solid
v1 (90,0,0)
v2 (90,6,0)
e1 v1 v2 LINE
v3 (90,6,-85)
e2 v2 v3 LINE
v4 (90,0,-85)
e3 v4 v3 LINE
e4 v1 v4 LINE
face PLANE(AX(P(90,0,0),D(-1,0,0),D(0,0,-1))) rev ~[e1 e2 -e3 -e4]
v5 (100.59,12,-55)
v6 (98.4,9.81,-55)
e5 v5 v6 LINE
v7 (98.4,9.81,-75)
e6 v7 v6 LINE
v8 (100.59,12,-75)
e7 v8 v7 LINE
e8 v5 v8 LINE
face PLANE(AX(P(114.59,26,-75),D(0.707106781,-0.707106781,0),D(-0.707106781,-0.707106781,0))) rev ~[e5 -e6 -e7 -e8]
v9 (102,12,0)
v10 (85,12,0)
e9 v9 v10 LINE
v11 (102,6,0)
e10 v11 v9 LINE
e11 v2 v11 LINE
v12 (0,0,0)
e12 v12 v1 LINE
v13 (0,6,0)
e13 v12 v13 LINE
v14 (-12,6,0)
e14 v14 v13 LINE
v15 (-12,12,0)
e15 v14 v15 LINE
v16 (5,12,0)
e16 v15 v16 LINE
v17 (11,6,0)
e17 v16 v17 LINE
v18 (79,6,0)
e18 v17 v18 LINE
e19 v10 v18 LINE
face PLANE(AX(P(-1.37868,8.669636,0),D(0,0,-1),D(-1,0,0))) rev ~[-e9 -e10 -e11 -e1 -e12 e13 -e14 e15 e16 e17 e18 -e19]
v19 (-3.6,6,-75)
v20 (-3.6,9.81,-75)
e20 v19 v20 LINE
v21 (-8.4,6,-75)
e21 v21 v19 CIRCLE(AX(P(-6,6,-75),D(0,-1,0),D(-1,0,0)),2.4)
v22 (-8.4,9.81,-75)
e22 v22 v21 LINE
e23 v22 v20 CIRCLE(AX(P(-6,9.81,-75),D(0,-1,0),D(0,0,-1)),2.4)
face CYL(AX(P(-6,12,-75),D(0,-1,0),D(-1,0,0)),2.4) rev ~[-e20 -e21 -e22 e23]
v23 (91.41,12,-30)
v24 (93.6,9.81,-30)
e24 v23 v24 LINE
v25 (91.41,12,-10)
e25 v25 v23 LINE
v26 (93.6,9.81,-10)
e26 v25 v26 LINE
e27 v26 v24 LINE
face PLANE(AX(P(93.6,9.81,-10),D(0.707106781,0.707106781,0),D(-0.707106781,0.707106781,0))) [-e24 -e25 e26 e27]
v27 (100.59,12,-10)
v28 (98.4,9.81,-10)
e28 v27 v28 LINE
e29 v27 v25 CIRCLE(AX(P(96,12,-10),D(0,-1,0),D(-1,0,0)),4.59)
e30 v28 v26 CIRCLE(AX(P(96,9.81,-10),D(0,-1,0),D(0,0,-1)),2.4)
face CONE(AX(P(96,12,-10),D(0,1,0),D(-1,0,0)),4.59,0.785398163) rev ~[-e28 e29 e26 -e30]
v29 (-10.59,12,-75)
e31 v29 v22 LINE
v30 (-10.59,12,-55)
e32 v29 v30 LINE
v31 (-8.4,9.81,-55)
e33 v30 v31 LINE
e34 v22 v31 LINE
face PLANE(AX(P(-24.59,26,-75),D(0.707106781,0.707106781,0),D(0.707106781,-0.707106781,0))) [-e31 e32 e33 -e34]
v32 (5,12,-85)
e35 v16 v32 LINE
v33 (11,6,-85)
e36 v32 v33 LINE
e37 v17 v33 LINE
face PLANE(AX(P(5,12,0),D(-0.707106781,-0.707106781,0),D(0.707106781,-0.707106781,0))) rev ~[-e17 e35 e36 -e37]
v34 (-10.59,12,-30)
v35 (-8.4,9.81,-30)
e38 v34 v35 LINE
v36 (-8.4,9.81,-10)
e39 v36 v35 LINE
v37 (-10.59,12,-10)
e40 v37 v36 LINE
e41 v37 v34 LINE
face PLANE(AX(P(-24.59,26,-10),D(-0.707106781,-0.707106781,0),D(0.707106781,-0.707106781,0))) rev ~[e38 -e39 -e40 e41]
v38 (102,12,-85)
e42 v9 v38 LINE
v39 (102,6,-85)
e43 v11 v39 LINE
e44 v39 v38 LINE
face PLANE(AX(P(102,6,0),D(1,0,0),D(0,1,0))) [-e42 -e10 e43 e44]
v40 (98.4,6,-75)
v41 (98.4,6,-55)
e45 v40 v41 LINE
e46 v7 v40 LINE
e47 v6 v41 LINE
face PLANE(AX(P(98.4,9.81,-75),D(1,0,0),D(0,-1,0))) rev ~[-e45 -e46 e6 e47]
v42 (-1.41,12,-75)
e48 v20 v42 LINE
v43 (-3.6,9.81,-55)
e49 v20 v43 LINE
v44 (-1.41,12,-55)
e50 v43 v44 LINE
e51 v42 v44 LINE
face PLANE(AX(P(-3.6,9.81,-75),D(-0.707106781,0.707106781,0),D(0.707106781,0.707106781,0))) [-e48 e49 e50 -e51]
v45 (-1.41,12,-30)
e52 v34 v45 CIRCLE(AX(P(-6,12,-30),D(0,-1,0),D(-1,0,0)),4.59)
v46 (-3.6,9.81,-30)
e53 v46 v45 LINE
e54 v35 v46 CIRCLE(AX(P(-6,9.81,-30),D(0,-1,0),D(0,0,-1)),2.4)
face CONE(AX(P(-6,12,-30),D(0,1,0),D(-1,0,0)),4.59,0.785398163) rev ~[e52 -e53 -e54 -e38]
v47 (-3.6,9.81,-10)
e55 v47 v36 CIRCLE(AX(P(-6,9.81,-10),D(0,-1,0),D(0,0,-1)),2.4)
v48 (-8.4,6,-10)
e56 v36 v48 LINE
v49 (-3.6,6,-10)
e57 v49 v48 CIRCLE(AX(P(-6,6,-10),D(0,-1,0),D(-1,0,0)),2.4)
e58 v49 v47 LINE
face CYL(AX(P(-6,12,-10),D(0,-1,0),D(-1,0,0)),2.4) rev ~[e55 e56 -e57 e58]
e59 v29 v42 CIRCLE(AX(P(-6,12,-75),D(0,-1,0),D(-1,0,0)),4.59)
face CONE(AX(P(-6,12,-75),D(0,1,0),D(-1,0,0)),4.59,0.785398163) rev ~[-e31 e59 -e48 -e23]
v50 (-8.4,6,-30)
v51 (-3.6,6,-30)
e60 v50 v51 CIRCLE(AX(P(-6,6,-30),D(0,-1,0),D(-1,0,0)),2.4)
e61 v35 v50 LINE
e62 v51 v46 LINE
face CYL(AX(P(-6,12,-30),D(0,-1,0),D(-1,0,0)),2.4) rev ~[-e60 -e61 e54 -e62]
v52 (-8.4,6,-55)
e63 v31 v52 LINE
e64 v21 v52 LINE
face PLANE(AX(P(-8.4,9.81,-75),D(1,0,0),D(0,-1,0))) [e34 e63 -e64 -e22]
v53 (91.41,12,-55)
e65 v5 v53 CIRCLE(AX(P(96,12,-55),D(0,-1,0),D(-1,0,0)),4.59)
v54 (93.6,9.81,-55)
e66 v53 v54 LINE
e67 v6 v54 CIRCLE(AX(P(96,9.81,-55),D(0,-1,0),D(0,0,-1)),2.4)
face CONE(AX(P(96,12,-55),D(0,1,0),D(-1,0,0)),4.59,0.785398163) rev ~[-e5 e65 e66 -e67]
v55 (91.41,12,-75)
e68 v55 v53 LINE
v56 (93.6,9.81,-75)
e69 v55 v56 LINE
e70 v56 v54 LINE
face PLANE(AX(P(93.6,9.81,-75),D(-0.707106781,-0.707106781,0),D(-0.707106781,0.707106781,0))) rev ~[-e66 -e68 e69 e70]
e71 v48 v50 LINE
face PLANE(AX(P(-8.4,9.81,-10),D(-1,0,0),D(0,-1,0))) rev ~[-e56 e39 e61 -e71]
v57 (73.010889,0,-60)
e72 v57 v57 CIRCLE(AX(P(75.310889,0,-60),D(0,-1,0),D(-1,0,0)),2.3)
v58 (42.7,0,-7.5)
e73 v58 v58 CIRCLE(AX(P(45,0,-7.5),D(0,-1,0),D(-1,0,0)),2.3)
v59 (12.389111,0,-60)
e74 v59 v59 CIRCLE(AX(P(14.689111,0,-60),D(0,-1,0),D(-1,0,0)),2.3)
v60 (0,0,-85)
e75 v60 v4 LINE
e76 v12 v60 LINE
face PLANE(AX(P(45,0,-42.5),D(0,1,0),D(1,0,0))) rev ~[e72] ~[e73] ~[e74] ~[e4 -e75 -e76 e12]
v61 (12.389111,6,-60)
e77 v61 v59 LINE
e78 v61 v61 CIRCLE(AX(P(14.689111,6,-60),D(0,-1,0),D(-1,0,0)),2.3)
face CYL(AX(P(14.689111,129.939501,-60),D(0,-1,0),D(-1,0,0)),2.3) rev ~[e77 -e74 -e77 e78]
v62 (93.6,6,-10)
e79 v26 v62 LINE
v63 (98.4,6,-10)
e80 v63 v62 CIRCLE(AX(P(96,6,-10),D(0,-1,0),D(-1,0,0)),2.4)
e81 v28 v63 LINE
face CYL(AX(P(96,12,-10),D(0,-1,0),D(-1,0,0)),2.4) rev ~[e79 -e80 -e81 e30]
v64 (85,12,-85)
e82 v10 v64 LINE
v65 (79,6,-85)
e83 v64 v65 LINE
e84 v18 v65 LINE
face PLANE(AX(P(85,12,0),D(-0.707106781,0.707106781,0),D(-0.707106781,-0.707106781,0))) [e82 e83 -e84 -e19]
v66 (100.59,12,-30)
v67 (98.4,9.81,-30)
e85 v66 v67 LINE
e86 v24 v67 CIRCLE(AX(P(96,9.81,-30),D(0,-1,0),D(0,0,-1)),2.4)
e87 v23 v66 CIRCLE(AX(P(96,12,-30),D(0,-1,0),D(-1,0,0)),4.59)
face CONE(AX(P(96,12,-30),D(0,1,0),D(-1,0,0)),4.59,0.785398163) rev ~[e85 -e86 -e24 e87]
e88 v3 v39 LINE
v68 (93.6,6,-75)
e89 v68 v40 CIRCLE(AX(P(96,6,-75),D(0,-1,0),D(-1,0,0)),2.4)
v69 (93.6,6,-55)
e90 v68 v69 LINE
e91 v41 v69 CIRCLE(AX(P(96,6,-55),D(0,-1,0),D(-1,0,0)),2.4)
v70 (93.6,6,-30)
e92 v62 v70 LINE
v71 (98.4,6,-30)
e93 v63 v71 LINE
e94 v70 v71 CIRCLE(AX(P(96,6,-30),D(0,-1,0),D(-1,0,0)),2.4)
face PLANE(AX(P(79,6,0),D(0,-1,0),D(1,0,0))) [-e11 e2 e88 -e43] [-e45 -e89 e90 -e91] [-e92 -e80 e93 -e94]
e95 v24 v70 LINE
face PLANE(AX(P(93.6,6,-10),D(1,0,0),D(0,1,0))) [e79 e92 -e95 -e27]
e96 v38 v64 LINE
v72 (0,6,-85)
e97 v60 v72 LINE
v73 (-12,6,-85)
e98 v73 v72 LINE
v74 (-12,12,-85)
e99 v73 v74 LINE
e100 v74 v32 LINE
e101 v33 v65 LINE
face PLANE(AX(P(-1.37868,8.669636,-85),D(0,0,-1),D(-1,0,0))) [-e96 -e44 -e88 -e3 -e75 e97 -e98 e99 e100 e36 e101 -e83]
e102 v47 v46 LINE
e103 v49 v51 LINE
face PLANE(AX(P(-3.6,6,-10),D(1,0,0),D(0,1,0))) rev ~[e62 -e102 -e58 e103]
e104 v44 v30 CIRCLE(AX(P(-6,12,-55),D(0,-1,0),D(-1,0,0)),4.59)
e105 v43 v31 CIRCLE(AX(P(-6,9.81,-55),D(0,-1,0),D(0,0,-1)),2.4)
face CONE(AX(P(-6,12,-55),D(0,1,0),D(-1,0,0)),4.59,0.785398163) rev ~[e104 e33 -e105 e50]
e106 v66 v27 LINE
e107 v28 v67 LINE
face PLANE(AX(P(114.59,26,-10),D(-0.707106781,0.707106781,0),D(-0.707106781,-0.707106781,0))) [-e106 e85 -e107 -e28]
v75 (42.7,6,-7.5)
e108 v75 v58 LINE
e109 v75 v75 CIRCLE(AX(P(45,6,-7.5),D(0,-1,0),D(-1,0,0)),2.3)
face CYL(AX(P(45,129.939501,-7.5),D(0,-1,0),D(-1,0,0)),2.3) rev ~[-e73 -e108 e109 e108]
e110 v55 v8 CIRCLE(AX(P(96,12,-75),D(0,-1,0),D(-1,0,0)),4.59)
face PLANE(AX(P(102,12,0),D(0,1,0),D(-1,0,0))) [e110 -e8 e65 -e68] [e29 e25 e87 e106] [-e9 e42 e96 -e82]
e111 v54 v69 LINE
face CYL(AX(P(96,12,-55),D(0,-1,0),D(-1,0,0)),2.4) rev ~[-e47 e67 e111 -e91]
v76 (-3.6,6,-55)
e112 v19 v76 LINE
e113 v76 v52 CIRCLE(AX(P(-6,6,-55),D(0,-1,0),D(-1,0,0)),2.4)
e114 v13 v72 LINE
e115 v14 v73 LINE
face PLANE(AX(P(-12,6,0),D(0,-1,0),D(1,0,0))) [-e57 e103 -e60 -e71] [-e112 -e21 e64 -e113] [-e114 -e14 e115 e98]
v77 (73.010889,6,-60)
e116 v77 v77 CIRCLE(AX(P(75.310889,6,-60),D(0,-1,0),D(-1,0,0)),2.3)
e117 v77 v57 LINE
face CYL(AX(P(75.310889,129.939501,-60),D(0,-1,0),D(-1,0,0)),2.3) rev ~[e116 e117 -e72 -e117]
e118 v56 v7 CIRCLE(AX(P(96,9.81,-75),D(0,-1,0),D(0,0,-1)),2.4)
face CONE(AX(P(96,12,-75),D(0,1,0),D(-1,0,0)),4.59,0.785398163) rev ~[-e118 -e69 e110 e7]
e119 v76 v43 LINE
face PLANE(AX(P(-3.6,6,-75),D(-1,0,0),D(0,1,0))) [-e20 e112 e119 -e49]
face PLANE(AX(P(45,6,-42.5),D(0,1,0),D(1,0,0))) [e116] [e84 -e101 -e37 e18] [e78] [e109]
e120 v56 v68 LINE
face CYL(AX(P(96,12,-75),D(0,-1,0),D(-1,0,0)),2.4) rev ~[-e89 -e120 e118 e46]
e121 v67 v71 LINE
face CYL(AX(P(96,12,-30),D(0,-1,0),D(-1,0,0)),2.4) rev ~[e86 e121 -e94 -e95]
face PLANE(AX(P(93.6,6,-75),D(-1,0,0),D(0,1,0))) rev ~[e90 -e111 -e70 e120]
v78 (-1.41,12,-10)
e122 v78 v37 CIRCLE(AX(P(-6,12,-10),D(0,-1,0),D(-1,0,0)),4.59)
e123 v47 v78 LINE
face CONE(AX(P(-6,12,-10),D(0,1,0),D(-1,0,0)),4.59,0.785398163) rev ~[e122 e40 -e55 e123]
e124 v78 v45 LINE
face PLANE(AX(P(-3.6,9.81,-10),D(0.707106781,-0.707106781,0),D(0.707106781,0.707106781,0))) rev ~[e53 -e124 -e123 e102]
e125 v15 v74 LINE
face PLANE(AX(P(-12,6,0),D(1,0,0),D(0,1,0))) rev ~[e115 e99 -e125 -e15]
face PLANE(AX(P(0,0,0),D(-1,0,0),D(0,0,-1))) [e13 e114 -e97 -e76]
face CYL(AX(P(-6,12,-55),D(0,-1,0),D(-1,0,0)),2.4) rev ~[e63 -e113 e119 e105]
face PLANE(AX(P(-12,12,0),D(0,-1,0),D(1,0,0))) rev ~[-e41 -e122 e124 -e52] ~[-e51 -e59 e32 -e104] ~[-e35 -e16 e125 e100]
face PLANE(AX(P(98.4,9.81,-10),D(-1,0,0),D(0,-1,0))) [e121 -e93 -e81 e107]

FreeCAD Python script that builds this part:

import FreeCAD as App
import Part
import Sketcher
Q = App.Units.Quantity


def add_polygon(sketch, points):
    """Adds a closed chain of lines whose ends are joined by coincident constraints."""
    first, n = sketch.GeometryCount, len(points)
    for a, b in zip(points, points[1:] + points[:1]):
        sketch.addGeometry(Part.LineSegment(App.Vector(*a, 0), App.Vector(*b, 0)), False)
    for i in range(n):
        sketch.addConstraint(Sketcher.Constraint("Coincident", first + i, 2, first + (i + 1) % n, 1))

doc = App.newDocument("Part")
body = doc.addObject("PartDesign::Body", "Body")

# Sketch on XZ plane
sketch1 = body.newObject("Sketcher::SketchObject", "Sketch")
sketch1.AttachmentSupport = (doc.getObject("XZ_Plane"), [""])
sketch1.MapMode = "FlatFace"
add_polygon(sketch1, [(0, -85), (0, 0), (90, 0), (90, -85)])  # lines 0-3
sketch1.addConstraint([
    Sketcher.Constraint("Vertical", 0),
    Sketcher.Constraint("Horizontal", 1),
    Sketcher.Constraint("Vertical", 2),
    Sketcher.Constraint("Horizontal", 3),
    Sketcher.Constraint("Coincident", 0, 2, -1, 1),
    Sketcher.Constraint("DistanceX", 1, 1, 1, 2, Q("90 mm")),
    Sketcher.Constraint("DistanceY", 0, 1, 0, 2, Q("85 mm")),
])
pad1 = body.newObject("PartDesign::Pad", "Pad")
pad1.Profile = sketch1
pad1.Length = 6
pad1.Reversed = True

# Sketch on XZ plane
sketch2 = body.newObject("Sketcher::SketchObject", "Sketch001")
sketch2.AttachmentSupport = (doc.getObject("XZ_Plane"), [""])
sketch2.MapMode = "FlatFace"
sketch2.AttachmentOffset = App.Placement(App.Vector(0, 0, -6), App.Rotation())
sketch2.addGeometry([
    Part.Circle(App.Vector(75.310889, -60, 0), App.Vector(0, 0, 1), 2.3),
    Part.Circle(App.Vector(45, -7.5, 0), App.Vector(0, 0, 1), 2.3),
    Part.Circle(App.Vector(14.689111, -60, 0), App.Vector(0, 0, 1), 2.3),
], False)
sketch2.addConstraint([
    Sketcher.Constraint("Equal", 0, 1),
    Sketcher.Constraint("Equal", 1, 2),
    Sketcher.Constraint("Horizontal", 0, 3, 2, 3),
    Sketcher.Constraint("Diameter", 0, Q("4.6 mm")),
    Sketcher.Constraint("DistanceY", 0, 3, -1, 1, Q("60 mm")),
    Sketcher.Constraint("DistanceX", -1, 1, 1, 3, Q("45 mm")),
    Sketcher.Constraint("DistanceY", 1, 3, -1, 1, Q("7.5 mm")),
    Sketcher.Constraint("DistanceX", -1, 1, 0, 3, Q("75.310889 mm")),
    Sketcher.Constraint("DistanceX", -1, 1, 2, 3, Q("14.689111 mm")),
])
doc.recompute()
hole = body.newObject("PartDesign::Hole", "Hole")
hole.Profile = sketch2
hole.ThreadType = "None"
hole.Diameter = 4.6
hole.DepthType = "ThroughAll"
hole.Reversed = True

# Sketch on XY plane
sketch3 = body.newObject("Sketcher::SketchObject", "Sketch002")
sketch3.AttachmentSupport = (doc.getObject("XY_Plane"), [""])
sketch3.MapMode = "FlatFace"
add_polygon(sketch3, [(11, 6), (5, 12), (-12, 12), (-12, 6)])  # lines 0-3
add_polygon(sketch3, [(79, 6), (102, 6), (102, 12), (85, 12)])  # lines 4-7
sketch3.addConstraint([
    Sketcher.Constraint("Horizontal", 1),
    Sketcher.Constraint("Vertical", 2),
    Sketcher.Constraint("Horizontal", 3),
    Sketcher.Constraint("Horizontal", 4),
    Sketcher.Constraint("Vertical", 5),
    Sketcher.Constraint("Horizontal", 6),
    Sketcher.Constraint("Perpendicular", 0, 7),
    Sketcher.Constraint("Horizontal", 3, 2, 4, 2),
    Sketcher.Constraint("Horizontal", 1, 2, 5, 2),
    Sketcher.Constraint("Equal", 3, 4),
    Sketcher.Constraint("Equal", 1, 6),
    Sketcher.Constraint("DistanceX", 1, 2, 1, 1, Q("17 mm")),
    Sketcher.Constraint("DistanceX", 3, 1, 3, 2, Q("23 mm")),
    Sketcher.Constraint("DistanceX", -1, 1, 0, 2, Q("5 mm")),
    Sketcher.Constraint("DistanceY", -1, 1, 0, 2, Q("12 mm")),
    Sketcher.Constraint("DistanceX", -1, 1, 4, 2, Q("102 mm")),
])
pad2 = body.newObject("PartDesign::Pad", "Pad001")
pad2.Profile = sketch3
pad2.Length = 85
pad2.Reversed = True

# Sketch on XZ plane
sketch4 = body.newObject("Sketcher::SketchObject", "Sketch003")
sketch4.AttachmentSupport = (doc.getObject("XZ_Plane"), [""])
sketch4.MapMode = "FlatFace"
sketch4.AttachmentOffset = App.Placement(App.Vector(0, 0, -12), App.Rotation())
sketch4.addGeometry([
    Part.Circle(App.Vector(-6, -10, 0), App.Vector(0, 0, 1), 2.4),  # 0
    Part.Circle(App.Vector(-6, -75, 0), App.Vector(0, 0, 1), 2.4),  # 1
    Part.Circle(App.Vector(96, -75, 0), App.Vector(0, 0, 1), 2.4),  # 2
    Part.Circle(App.Vector(96, -10, 0), App.Vector(0, 0, 1), 2.4),  # 3
    Part.Circle(App.Vector(-6, -30, 0), App.Vector(0, 0, 1), 2.4),  # 4
    Part.Circle(App.Vector(-6, -55, 0), App.Vector(0, 0, 1), 2.4),  # 5
    Part.Circle(App.Vector(96, -55, 0), App.Vector(0, 0, 1), 2.4),  # 6
    Part.Circle(App.Vector(96, -30, 0), App.Vector(0, 0, 1), 2.4),  # 7
], False)
sketch4.addConstraint([
    Sketcher.Constraint("Equal", 0, 1),
    Sketcher.Constraint("Equal", 1, 2),
    Sketcher.Constraint("Equal", 2, 3),
    Sketcher.Constraint("Equal", 3, 4),
    Sketcher.Constraint("Equal", 4, 5),
    Sketcher.Constraint("Equal", 5, 6),
    Sketcher.Constraint("Equal", 6, 7),
    Sketcher.Constraint("Horizontal", 1, 3, 2, 3),
    Sketcher.Constraint("Horizontal", 0, 3, 3, 3),
    Sketcher.Constraint("Horizontal", 5, 3, 6, 3),
    Sketcher.Constraint("Horizontal", 4, 3, 7, 3),
    Sketcher.Constraint("Vertical", 0, 3, 1, 3),
    Sketcher.Constraint("Vertical", 2, 3, 3, 3),
    Sketcher.Constraint("Vertical", 1, 3, 4, 3),
    Sketcher.Constraint("Vertical", 4, 3, 5, 3),
    Sketcher.Constraint("Vertical", 3, 3, 6, 3),
    Sketcher.Constraint("Vertical", 6, 3, 7, 3),
    Sketcher.Constraint("Diameter", 0, Q("4.8 mm")),
    Sketcher.Constraint("DistanceX", 0, 3, -1, 1, Q("6 mm")),
    Sketcher.Constraint("DistanceY", 0, 3, -1, 1, Q("10 mm")),
    Sketcher.Constraint("DistanceY", 1, 3, -1, 1, Q("75 mm")),
    Sketcher.Constraint("DistanceX", -1, 1, 2, 3, Q("96 mm")),
    Sketcher.Constraint("DistanceY", 4, 3, -1, 1, Q("30 mm")),
    Sketcher.Constraint("DistanceY", 5, 3, -1, 1, Q("55 mm")),
])
doc.recompute()
hole2 = body.newObject("PartDesign::Hole", "Hole001")
hole2.Profile = sketch4
hole2.ThreadType = "None"
hole2.Diameter = 4.8
hole2.DepthType = "ThroughAll"
hole2.HoleCutType = "Countersink"
hole2.HoleCutDiameter = 9.18
hole2.HoleCutCountersinkAngle = 90
hole2.Reversed = True

# Sketch on XY plane
sketch5 = body.newObject("Sketcher::SketchObject", "Sketch004")
sketch5.AttachmentSupport = (doc.getObject("XY_Plane"), [""])
sketch5.MapMode = "FlatFace"
sketch5.AttachmentOffset = App.Placement(App.Vector(0, 0, -10), App.Rotation())
add_polygon(sketch5, [(-8.4, 6), (-3.6, 6), (-3.6, 9.81), (-1.41, 12), (-24.59, 26), (-8.4, 9.81)])  # lines 0-5
add_polygon(sketch5, [(114.59, 26), (91.41, 12), (93.6, 9.81), (93.6, 6), (98.4, 6), (98.4, 9.81)])  # lines 6-11
sketch5.addConstraint([
    Sketcher.Constraint("Horizontal", 0),
    Sketcher.Constraint("Vertical", 1),
    Sketcher.Constraint("Vertical", 5),
    Sketcher.Constraint("Vertical", 8),
    Sketcher.Constraint("Horizontal", 9),
    Sketcher.Constraint("Vertical", 10),
    Sketcher.Constraint("Perpendicular", 2, 4),
    Sketcher.Constraint("Parallel", 4, 7),
    Sketcher.Constraint("Perpendicular", 7, 11),
    Sketcher.Constraint("Horizontal", 1, 2, 4, 2),
    Sketcher.Constraint("Horizontal", 2, 2, 6, 2),
    Sketcher.Constraint("Horizontal", 4, 2, 7, 2),
    Sketcher.Constraint("Horizontal", 5, 2, 8, 2),
    Sketcher.Constraint("Horizontal", 7, 2, 10, 2),
    Sketcher.Constraint("Horizontal", 3, 2, 11, 2),
    Sketcher.Constraint("Equal", 0, 9),
    Sketcher.Constraint("Equal", 3, 6),
    Sketcher.Constraint("DistanceX", 0, 1, 0, 2, Q("4.8 mm")),
    Sketcher.Constraint("DistanceY", -1, 1, 0, 2, Q("6 mm")),
    Sketcher.Constraint("DistanceY", -1, 1, 2, 2, Q("12 mm")),
    Sketcher.Constraint("DistanceY", -1, 1, 3, 2, Q("26 mm")),
    Sketcher.Constraint("DistanceX", 4, 2, 7, 2, Q("102 mm")),
    Sketcher.Constraint("DistanceY", 1, 1, 1, 2, Q("3.81 mm")),
    Sketcher.Constraint("DistanceX", 0, 2, -1, 1, Q("3.6 mm")),
])
pocket1 = body.newObject("PartDesign::Pocket", "Pocket")
pocket1.Profile = sketch5
pocket1.Length = 20

# Sketch on XY plane
sketch6 = body.newObject("Sketcher::SketchObject", "Sketch005")
sketch6.AttachmentSupport = (doc.getObject("XY_Plane"), [""])
sketch6.MapMode = "FlatFace"
sketch6.AttachmentOffset = App.Placement(App.Vector(0, 0, -75), App.Rotation())
add_polygon(sketch6, [(-8.4, 6), (-3.6, 6), (-3.6, 9.81), (-1.41, 12), (-24.59, 26), (-8.4, 9.81)])  # lines 0-5
add_polygon(sketch6, [(98.4, 9.81), (114.59, 26), (91.41, 12), (93.6, 9.81), (93.6, 6), (98.4, 6)])  # lines 6-11
sketch6.addConstraint([
    Sketcher.Constraint("Horizontal", 0),
    Sketcher.Constraint("Vertical", 1),
    Sketcher.Constraint("Vertical", 5),
    Sketcher.Constraint("Vertical", 9),
    Sketcher.Constraint("Horizontal", 10),
    Sketcher.Constraint("Vertical", 11),
    Sketcher.Constraint("Perpendicular", 2, 4),
    Sketcher.Constraint("Perpendicular", 4, 6),
    Sketcher.Constraint("Perpendicular", 6, 8),
    Sketcher.Constraint("Horizontal", 1, 2, 4, 2),
    Sketcher.Constraint("Horizontal", 3, 2, 6, 2),
    Sketcher.Constraint("Horizontal", 2, 2, 7, 2),
    Sketcher.Constraint("Horizontal", 4, 2, 8, 2),
    Sketcher.Constraint("Horizontal", 5, 2, 9, 2),
    Sketcher.Constraint("Horizontal", 8, 2, 11, 2),
    Sketcher.Constraint("Equal", 0, 10),
    Sketcher.Constraint("Equal", 4, 6),
    Sketcher.Constraint("DistanceX", 0, 1, 0, 2, Q("4.8 mm")),
    Sketcher.Constraint("DistanceY", -1, 1, 0, 2, Q("6 mm")),
    Sketcher.Constraint("DistanceY", -1, 1, 2, 2, Q("12 mm")),
    Sketcher.Constraint("DistanceY", -1, 1, 3, 2, Q("26 mm")),
    Sketcher.Constraint("DistanceX", 2, 2, 6, 2, Q("116 mm")),
    Sketcher.Constraint("DistanceY", 1, 1, 1, 2, Q("3.81 mm")),
    Sketcher.Constraint("DistanceX", 0, 2, -1, 1, Q("3.6 mm")),
])
pocket2 = body.newObject("PartDesign::Pocket", "Pocket001")
pocket2.Profile = sketch6
pocket2.Length = 20
pocket2.Reversed = True

doc.recompute()
